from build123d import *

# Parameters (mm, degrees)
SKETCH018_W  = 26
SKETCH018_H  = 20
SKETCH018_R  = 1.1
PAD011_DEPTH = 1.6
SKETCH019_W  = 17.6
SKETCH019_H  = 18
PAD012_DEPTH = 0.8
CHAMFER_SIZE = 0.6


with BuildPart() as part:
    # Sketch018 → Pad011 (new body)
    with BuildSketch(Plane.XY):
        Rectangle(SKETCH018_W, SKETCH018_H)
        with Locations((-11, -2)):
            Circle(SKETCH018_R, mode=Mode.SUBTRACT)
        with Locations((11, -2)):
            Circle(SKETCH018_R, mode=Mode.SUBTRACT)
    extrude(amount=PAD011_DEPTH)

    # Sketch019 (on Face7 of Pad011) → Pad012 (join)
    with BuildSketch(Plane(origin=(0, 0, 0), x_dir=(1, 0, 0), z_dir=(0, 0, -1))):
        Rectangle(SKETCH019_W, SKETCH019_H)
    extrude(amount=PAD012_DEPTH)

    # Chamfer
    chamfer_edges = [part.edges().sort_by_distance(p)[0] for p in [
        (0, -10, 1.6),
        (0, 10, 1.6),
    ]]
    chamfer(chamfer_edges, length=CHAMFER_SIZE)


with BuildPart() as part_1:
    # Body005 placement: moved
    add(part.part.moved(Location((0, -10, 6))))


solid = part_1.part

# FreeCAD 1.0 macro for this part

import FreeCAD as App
import Part
import Sketcher

V = App.Vector


def edges_at(feature, points):
    """Names of the edges that pass closest to the given points."""
    edges = feature.Shape.Edges
    near = lambda p: min(range(len(edges)), key=lambda i: edges[i].distToShape(Part.Vertex(*p))[0])
    return sorted({f"Edge{near(p) + 1}" for p in points})


def add_polygon(sketch, points):
    """Adds a closed chain of lines whose ends are joined by coincident constraints."""
    first, n = sketch.GeometryCount, len(points)
    for a, b in zip(points, points[1:] + points[:1]):
        sketch.addGeometry(Part.LineSegment(App.Vector(*a, 0), App.Vector(*b, 0)), False)
    for i in range(n):
        sketch.addConstraint(Sketcher.Constraint("Coincident", first + i, 2, first + (i + 1) % n, 1))

doc = App.newDocument("Part")
body = doc.addObject("PartDesign::Body", "Body")

# Sketch on XY plane
sketch1 = body.newObject("Sketcher::SketchObject", "Sketch")
sketch1.AttachmentSupport = (doc.getObject("XY_Plane"), [""])
sketch1.MapMode = "FlatFace"
add_polygon(sketch1, [(-13, 10), (-13, -10), (13, -10), (13, 10)])  # lines 0-3
sketch1.addGeometry(Part.Circle(V(-11, -2, 0), V(0, 0, 1), 1.1), False)  # 4
sketch1.addGeometry(Part.Circle(V(11, -2, 0), V(0, 0, 1), 1.1), False)  # 5
sketch1.addConstraint([
    Sketcher.Constraint("Vertical", 0),
    Sketcher.Constraint("Horizontal", 1),
    Sketcher.Constraint("Vertical", 2),
    Sketcher.Constraint("Horizontal", 3),
    Sketcher.Constraint("Equal", 4, 5),
    Sketcher.Constraint("Symmetric", 0, 2, 2, 2, -1, 1),
    Sketcher.Constraint("Symmetric", 4, 3, 5, 3, -2),
    Sketcher.Constraint("Diameter", 4, 2.2),
    Sketcher.Constraint("DistanceX", 1, 1, 1, 2, 26.0),
    Sketcher.Constraint("DistanceY", 0, 2, 0, 1, 20.0),
    Sketcher.Constraint("DistanceX", 4, 3, -1, 1, 11.0),
    Sketcher.Constraint("DistanceY", 4, 3, -1, 1, 2.0),
])
pad1 = body.newObject("PartDesign::Pad", "Pad")
pad1.Profile = sketch1
pad1.Length = 1.6

# Sketch on XY plane
sketch2 = body.newObject("Sketcher::SketchObject", "Sketch001")
sketch2.AttachmentSupport = (doc.getObject("XY_Plane"), [""])
sketch2.MapMode = "FlatFace"
add_polygon(sketch2, [(-9, -9), (-9, 9), (9, 9), (9, -9)])  # lines 0-3
sketch2.addConstraint([
    Sketcher.Constraint("Vertical", 0),
    Sketcher.Constraint("Horizontal", 1),
    Sketcher.Constraint("Vertical", 2),
    Sketcher.Constraint("Horizontal", 3),
    Sketcher.Constraint("Symmetric", 0, 2, 2, 2, -1, 1),
    Sketcher.Constraint("DistanceY", 0, 1, 0, 2, 18.0),
    Sketcher.Constraint("DistanceX", 1, 1, 1, 2, 17.6),
])
pad2 = body.newObject("PartDesign::Pad", "Pad001")
pad2.Profile = sketch2
pad2.Length = 0.8
pad2.Reversed = True
doc.recompute()

chamfer = body.newObject("PartDesign::Chamfer", "Chamfer")
chamfer.Base = (pad2, edges_at(pad2, [(0, -10, 1.6), (0, 10, 1.6)]))
chamfer.Size = 0.6
body2 = doc.addObject("PartDesign::Body", "Body001")
doc.recompute()

body.Placement = App.Placement(V(0, -10, 6), App.Rotation(V(0, 0, 1), 0))
boolean = body2.newObject("PartDesign::Boolean", "Boolean")
boolean.Type = "Fuse"
boolean.addObjects([body])

doc.recompute()
